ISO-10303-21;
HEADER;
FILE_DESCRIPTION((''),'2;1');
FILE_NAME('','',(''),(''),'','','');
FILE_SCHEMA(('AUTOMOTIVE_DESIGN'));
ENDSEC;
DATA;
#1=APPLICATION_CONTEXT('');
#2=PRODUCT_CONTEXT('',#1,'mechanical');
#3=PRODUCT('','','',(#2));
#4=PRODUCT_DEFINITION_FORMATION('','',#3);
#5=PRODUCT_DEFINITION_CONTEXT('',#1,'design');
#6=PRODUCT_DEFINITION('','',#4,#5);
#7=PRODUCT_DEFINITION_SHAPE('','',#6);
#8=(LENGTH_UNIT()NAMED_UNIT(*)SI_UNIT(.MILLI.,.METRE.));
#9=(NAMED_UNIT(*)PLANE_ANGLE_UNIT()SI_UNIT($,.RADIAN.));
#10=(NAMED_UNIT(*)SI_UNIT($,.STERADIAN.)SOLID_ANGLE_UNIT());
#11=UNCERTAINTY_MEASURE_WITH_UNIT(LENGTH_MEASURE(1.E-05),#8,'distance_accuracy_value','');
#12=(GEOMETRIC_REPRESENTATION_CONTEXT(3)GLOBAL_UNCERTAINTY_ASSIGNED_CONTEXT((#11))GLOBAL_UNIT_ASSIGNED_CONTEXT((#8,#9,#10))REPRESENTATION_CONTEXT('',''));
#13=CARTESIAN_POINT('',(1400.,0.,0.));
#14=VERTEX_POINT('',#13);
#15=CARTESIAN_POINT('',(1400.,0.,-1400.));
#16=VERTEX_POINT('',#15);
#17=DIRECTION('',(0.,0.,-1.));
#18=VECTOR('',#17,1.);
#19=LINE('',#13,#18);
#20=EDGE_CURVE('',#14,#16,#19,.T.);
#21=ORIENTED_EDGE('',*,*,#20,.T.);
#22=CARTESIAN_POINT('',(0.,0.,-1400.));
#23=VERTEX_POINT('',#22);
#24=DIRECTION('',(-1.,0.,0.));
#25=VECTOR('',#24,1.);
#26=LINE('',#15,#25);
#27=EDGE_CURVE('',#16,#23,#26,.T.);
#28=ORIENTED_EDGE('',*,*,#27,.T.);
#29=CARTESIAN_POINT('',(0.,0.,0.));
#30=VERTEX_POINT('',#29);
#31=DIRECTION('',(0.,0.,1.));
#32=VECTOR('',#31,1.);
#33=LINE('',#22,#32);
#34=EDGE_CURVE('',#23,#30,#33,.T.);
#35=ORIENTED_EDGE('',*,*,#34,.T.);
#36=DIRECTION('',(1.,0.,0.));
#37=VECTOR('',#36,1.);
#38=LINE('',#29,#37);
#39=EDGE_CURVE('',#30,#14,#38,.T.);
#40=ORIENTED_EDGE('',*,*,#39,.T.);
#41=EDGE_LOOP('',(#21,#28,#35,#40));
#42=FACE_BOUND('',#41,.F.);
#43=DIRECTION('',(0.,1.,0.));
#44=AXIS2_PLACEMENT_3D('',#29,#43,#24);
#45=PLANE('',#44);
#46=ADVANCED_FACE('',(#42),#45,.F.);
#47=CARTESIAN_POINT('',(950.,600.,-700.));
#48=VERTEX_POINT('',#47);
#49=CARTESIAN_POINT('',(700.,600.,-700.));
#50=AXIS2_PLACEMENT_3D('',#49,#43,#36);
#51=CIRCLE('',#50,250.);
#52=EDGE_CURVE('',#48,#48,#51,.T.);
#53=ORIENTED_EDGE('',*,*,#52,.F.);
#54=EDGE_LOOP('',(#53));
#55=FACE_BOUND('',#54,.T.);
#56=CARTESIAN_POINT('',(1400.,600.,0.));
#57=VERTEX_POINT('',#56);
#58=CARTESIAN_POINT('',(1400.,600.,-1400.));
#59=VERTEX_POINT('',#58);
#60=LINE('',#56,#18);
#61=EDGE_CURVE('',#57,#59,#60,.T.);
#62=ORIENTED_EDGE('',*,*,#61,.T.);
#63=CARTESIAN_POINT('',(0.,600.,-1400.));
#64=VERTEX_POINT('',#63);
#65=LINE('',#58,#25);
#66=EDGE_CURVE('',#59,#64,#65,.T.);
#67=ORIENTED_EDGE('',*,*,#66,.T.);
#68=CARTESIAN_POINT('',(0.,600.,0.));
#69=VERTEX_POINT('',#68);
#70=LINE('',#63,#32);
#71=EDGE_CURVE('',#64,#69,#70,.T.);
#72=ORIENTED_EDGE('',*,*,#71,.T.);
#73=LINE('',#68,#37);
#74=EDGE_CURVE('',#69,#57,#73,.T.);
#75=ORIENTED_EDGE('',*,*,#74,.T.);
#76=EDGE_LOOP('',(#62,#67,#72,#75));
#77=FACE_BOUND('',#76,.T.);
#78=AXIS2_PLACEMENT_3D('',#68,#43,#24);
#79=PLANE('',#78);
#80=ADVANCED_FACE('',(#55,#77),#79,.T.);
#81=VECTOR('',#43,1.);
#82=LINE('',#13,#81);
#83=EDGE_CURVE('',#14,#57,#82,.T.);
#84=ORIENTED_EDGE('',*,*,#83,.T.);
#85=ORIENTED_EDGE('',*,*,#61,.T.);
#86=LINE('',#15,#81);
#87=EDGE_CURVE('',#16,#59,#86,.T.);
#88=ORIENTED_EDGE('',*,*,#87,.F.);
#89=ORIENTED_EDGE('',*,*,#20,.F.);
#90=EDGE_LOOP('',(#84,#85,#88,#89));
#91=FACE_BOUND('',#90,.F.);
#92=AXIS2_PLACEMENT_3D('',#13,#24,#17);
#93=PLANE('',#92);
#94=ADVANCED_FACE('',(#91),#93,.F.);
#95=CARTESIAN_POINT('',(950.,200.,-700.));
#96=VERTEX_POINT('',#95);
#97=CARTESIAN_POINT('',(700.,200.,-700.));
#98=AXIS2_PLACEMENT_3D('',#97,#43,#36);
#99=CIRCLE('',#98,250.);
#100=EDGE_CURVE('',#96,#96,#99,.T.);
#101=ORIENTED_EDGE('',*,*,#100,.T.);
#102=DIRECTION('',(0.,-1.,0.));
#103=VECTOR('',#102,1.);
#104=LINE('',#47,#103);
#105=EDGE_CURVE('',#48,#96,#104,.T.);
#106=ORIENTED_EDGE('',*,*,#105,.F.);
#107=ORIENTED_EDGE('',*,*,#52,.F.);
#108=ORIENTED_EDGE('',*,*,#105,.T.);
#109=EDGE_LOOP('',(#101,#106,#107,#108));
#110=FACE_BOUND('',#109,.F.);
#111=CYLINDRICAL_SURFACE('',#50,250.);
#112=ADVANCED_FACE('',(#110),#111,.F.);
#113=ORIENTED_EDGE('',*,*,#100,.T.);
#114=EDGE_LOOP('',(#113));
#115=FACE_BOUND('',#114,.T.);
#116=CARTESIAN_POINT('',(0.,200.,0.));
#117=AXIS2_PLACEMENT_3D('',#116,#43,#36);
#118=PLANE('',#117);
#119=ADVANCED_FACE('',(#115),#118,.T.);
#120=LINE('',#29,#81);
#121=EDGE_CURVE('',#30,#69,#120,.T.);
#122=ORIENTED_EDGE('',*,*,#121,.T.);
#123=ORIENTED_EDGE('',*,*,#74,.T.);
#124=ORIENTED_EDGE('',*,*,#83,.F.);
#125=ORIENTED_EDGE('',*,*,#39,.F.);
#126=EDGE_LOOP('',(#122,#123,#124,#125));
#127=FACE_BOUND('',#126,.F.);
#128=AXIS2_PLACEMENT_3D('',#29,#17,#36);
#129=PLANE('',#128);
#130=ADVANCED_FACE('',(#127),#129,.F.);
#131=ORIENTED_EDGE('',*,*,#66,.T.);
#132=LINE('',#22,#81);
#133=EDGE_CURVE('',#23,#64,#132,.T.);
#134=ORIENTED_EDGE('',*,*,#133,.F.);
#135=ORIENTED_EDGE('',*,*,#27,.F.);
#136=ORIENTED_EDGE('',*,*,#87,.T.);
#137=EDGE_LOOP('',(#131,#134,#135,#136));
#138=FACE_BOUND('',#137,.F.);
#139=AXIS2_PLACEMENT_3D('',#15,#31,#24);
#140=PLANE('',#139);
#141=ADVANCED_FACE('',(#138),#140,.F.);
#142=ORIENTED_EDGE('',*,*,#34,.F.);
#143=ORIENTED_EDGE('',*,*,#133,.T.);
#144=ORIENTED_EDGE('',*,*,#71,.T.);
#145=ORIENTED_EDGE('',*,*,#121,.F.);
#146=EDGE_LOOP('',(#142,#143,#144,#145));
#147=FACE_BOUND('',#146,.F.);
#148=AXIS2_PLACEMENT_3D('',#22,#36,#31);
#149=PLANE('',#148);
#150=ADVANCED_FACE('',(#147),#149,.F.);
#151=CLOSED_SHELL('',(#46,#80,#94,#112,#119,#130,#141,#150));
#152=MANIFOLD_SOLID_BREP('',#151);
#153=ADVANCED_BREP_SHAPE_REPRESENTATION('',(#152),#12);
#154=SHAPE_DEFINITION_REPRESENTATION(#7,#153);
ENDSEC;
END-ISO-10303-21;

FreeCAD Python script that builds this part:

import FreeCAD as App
import Part
import Sketcher
from FreeCAD import Vector
Q = App.Units.Quantity


def add_polygon(sketch, points):
    """Adds a closed chain of lines whose ends are joined by coincident constraints."""
    first, n = sketch.GeometryCount, len(points)
    for a, b in zip(points, points[1:] + points[:1]):
        sketch.addGeometry(Part.LineSegment(App.Vector(*a, 0), App.Vector(*b, 0)), False)
    for i in range(n):
        sketch.addConstraint(Sketcher.Constraint("Coincident", first + i, 2, first + (i + 1) % n, 1))

doc = App.newDocument("Part")
body = doc.addObject("PartDesign::Body", "Body")

# Sketch on XZ plane
sketch1 = doc.addObject("Sketcher::SketchObject", "Sketch")
body.addObject(sketch1)
sketch1.AttachmentSupport = (doc.XZ_Plane, [""])
sketch1.MapMode = "FlatFace"
add_polygon(sketch1, [(0, -1400), (0, 0), (1400, 0), (1400, -1400)])  # lines 0-3
sketch1.addConstraint([
    Sketcher.Constraint("Vertical", 0),
    Sketcher.Constraint("Horizontal", 1),
    Sketcher.Constraint("Vertical", 2),
    Sketcher.Constraint("Horizontal", 3),
    Sketcher.Constraint("Coincident", 0, 2, -1, 1),
    Sketcher.Constraint("Equal", 3, 0),
    Sketcher.Constraint("DistanceX", 1, 1, 1, 2, Q("1400 mm")),
])
pad1 = doc.addObject("PartDesign::Pad", "Pad")
body.addObject(pad1)
pad1.Profile = sketch1
pad1.Length = 600
pad1.Reversed = True

# Sketch on XZ plane
sketch2 = doc.addObject("Sketcher::SketchObject", "Sketch001")
body.addObject(sketch2)
sketch2.AttachmentSupport = (doc.XZ_Plane, [""])
sketch2.MapMode = "FlatFace"
sketch2.AttachmentOffset = App.Placement(Vector(0, 0, -600), App.Rotation())
sketch2.addGeometry(Part.Circle(Vector(700, -700, 0), Vector(0, 0, 1), 250), False)
sketch2.addConstraint([
    Sketcher.Constraint("Diameter", 0, Q("500 mm")),
    Sketcher.Constraint("DistanceX", -1, 1, 0, 3, Q("700 mm")),
    Sketcher.Constraint("DistanceY", 0, 3, -1, 1, Q("700 mm")),
])
pocket1 = doc.addObject("PartDesign::Pocket", "Pocket")
body.addObject(pocket1)
pocket1.Profile = sketch2
pocket1.Length = 400
pocket1.Reversed = True

doc.recompute()
